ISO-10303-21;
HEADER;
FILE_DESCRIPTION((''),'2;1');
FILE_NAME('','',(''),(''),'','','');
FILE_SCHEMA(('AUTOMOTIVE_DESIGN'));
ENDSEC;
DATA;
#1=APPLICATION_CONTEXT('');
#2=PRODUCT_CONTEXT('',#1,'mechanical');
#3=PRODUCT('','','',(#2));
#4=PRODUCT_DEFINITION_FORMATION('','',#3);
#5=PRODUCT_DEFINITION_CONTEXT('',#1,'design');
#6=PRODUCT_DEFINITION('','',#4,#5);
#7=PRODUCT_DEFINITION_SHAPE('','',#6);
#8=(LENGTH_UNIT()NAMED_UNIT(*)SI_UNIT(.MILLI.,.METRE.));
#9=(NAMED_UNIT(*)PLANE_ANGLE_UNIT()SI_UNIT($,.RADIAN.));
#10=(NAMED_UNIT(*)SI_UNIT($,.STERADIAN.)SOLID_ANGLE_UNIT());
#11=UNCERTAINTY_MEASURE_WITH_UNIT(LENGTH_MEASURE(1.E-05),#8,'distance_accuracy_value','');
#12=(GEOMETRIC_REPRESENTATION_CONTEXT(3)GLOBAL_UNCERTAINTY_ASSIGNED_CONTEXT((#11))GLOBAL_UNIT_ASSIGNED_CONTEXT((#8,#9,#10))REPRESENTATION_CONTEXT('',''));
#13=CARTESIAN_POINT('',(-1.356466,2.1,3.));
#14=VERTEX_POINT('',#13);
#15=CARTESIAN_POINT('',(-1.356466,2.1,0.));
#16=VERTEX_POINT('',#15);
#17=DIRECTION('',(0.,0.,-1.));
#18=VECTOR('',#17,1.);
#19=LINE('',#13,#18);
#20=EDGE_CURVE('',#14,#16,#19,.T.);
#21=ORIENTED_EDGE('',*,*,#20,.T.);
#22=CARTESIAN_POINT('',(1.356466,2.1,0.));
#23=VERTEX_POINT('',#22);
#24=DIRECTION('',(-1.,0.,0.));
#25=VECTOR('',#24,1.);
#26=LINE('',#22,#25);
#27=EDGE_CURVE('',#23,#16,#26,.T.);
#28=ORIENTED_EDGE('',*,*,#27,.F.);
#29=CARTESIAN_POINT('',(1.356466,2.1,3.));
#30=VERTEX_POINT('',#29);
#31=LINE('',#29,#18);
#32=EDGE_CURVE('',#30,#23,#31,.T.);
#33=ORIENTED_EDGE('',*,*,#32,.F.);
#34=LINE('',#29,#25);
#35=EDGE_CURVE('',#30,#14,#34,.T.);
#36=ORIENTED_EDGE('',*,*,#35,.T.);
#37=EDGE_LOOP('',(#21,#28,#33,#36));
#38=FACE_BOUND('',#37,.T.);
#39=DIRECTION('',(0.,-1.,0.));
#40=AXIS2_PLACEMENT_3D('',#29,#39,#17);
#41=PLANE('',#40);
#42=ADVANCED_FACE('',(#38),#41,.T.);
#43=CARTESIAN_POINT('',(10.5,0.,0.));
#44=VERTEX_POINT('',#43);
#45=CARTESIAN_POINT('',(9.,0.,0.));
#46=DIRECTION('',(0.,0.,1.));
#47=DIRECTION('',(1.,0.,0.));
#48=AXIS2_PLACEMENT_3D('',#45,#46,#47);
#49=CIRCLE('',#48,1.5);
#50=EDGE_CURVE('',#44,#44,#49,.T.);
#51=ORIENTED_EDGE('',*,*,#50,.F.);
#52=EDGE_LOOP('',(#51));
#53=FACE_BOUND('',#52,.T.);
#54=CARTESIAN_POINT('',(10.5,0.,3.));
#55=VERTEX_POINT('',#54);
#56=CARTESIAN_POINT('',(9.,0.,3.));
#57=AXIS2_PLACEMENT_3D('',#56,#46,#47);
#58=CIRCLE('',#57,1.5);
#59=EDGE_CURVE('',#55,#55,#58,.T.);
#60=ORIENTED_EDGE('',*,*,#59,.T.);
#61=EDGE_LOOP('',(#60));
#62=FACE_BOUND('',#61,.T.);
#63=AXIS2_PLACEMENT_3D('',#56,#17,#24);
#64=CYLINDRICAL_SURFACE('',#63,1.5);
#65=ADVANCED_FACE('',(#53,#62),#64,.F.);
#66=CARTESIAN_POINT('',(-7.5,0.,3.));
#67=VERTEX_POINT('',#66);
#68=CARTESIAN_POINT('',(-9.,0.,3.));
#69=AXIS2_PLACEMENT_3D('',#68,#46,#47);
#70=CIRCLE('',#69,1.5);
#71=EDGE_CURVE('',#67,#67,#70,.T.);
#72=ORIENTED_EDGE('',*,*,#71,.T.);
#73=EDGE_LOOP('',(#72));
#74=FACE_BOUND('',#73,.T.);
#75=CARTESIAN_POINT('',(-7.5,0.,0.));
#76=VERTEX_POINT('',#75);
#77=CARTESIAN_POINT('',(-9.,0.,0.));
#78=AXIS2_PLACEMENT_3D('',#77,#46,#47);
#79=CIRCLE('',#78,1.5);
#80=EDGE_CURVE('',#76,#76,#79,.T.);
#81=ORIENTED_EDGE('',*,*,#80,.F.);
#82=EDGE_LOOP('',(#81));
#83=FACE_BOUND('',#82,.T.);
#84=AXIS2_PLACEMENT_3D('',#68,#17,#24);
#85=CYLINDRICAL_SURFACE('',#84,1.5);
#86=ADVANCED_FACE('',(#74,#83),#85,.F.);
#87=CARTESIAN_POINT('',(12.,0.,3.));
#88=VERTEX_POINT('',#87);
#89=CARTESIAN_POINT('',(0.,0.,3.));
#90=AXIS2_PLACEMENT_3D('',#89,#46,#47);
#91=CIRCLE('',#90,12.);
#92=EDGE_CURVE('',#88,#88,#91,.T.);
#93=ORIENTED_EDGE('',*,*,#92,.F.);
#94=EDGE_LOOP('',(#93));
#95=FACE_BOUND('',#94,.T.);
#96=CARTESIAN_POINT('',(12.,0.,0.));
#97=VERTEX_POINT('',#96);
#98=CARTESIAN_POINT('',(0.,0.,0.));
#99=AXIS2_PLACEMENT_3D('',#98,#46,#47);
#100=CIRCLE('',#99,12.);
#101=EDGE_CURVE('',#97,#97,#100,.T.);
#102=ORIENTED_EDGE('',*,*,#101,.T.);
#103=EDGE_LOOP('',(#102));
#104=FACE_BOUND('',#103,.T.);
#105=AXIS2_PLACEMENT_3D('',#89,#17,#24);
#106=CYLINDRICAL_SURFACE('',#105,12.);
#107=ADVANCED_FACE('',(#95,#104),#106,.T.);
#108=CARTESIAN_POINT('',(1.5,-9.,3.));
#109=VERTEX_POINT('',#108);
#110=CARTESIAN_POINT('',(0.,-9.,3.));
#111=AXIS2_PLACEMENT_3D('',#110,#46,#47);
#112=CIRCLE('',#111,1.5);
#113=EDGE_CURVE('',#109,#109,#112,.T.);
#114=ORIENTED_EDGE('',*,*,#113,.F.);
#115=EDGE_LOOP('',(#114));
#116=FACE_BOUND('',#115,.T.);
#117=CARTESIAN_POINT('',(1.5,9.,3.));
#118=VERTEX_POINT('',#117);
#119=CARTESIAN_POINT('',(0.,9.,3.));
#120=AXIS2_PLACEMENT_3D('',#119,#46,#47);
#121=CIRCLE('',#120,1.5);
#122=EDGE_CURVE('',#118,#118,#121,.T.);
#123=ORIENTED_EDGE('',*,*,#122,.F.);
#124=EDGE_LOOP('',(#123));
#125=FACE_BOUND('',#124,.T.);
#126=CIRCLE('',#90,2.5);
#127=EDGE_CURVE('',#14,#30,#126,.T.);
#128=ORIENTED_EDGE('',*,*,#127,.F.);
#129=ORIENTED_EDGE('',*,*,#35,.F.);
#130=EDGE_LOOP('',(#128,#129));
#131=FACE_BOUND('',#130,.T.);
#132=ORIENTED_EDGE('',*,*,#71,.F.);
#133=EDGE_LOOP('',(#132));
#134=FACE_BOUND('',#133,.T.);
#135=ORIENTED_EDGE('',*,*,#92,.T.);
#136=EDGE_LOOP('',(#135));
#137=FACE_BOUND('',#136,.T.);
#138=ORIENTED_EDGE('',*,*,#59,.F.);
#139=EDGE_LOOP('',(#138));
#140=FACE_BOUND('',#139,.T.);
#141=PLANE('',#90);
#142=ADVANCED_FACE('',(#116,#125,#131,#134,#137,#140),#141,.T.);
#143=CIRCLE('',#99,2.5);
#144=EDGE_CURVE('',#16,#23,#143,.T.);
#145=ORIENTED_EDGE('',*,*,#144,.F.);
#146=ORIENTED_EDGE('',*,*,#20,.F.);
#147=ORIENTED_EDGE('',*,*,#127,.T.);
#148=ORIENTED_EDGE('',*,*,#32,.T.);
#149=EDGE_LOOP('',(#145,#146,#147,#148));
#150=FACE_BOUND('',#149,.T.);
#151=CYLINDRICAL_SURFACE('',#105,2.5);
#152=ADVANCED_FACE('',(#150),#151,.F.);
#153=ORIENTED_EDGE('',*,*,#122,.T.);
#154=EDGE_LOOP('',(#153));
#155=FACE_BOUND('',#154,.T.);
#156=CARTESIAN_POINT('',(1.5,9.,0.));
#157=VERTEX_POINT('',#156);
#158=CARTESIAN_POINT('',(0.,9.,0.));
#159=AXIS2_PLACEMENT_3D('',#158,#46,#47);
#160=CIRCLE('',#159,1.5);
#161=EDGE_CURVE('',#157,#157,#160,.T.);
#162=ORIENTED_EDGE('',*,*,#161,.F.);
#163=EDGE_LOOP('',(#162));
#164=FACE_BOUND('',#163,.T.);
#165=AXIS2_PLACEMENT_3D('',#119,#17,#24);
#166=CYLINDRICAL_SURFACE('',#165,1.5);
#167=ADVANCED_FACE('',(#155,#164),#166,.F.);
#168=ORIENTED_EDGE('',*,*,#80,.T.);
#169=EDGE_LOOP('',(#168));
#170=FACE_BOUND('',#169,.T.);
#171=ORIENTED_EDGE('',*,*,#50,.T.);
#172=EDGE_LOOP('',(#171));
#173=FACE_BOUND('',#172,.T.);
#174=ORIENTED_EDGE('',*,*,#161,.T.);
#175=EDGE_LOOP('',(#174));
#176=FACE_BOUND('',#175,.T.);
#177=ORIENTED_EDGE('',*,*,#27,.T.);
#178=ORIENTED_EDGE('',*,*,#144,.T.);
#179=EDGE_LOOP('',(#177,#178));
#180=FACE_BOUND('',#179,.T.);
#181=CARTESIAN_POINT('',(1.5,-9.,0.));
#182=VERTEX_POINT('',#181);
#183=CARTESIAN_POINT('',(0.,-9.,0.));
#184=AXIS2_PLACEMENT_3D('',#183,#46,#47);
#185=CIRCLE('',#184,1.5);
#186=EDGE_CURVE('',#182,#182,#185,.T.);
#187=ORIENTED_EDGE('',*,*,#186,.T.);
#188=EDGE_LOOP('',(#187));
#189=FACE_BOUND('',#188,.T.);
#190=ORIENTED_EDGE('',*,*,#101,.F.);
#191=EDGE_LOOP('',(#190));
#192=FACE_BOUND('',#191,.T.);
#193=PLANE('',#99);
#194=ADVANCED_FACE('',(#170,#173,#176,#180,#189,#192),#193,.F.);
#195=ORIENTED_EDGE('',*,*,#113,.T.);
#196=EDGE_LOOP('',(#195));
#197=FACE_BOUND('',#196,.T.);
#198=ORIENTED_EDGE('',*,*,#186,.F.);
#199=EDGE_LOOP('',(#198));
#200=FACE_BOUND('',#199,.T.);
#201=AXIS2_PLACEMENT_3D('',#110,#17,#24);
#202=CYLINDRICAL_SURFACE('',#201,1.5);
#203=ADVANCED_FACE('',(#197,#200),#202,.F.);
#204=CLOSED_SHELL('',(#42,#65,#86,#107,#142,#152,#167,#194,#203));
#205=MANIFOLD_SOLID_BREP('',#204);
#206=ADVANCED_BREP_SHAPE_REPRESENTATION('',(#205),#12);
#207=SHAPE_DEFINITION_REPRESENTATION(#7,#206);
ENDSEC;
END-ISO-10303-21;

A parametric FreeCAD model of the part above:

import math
import FreeCAD as App
import Part
import Sketcher
from FreeCAD import Vector
Q = App.Units.Quantity

doc = App.newDocument("Part")
body = doc.addObject("PartDesign::Body", "Body")

sketch1 = doc.addObject("Sketcher::SketchObject", "Sketch")
body.addObject(sketch1)
sketch1.AttachmentSupport = (doc.XY_Plane, [""])
sketch1.MapMode = "FlatFace"
sketch1.addGeometry([
    Part.Circle(Vector(0, 0, 0), Vector(0, 0, 1), 12),
    Part.Circle(Vector(0, -9, 0), Vector(0, 0, 1), 1.5),
    Part.LineSegment(Vector(-1.4, 2.1, 0), Vector(1.4, 2.1, 0)),
    Part.ArcOfCircle(Part.Circle(Vector(0, 0, 0), Vector(0, 0, 1), 2.5), math.radians(123), math.radians(417)),
    Part.Circle(Vector(-9, 0, 0), Vector(0, 0, 1), 1.5),
    Part.Circle(Vector(9, 0, 0), Vector(0, 0, 1), 1.5),
    Part.Circle(Vector(0, 9, 0), Vector(0, 0, 1), 1.5),
], False)
sketch1.addConstraint([
    Sketcher.Constraint("Coincident", 2, 1, 3, 1),
    Sketcher.Constraint("Coincident", 3, 2, 2, 2),
    Sketcher.Constraint("Horizontal", 2),
    Sketcher.Constraint("Coincident", 0, 3, -1, 1),
    Sketcher.Constraint("Coincident", 3, 3, -1, 1),
    Sketcher.Constraint("Equal", 1, 4),
    Sketcher.Constraint("Equal", 4, 5),
    Sketcher.Constraint("Equal", 5, 6),
    Sketcher.Constraint("Symmetric", 4, 3, 5, 3, -1, 1),
    Sketcher.Constraint("Symmetric", 1, 3, 6, 3, -1, 1),
    Sketcher.Constraint("PointOnObject", 1, 3, -2),
    Sketcher.Constraint("PointOnObject", 4, 3, -1),
    Sketcher.Constraint("Diameter", 0, Q("24 mm")),
    Sketcher.Constraint("Diameter", 1, Q("3 mm")),
    Sketcher.Constraint("Radius", 3, Q("2.5 mm")),
    Sketcher.Constraint("DistanceY", 1, 3, -1, 1, Q("9 mm")),
    Sketcher.Constraint("DistanceX", 4, 3, -1, 1, Q("9 mm")),
    Sketcher.Constraint("DistanceY", -1, 1, 2, 1, Q("2.1 mm")),
])
pad1 = doc.addObject("PartDesign::Pad", "Pad")
body.addObject(pad1)
pad1.Profile = sketch1
pad1.Length = 3

doc.recompute()
